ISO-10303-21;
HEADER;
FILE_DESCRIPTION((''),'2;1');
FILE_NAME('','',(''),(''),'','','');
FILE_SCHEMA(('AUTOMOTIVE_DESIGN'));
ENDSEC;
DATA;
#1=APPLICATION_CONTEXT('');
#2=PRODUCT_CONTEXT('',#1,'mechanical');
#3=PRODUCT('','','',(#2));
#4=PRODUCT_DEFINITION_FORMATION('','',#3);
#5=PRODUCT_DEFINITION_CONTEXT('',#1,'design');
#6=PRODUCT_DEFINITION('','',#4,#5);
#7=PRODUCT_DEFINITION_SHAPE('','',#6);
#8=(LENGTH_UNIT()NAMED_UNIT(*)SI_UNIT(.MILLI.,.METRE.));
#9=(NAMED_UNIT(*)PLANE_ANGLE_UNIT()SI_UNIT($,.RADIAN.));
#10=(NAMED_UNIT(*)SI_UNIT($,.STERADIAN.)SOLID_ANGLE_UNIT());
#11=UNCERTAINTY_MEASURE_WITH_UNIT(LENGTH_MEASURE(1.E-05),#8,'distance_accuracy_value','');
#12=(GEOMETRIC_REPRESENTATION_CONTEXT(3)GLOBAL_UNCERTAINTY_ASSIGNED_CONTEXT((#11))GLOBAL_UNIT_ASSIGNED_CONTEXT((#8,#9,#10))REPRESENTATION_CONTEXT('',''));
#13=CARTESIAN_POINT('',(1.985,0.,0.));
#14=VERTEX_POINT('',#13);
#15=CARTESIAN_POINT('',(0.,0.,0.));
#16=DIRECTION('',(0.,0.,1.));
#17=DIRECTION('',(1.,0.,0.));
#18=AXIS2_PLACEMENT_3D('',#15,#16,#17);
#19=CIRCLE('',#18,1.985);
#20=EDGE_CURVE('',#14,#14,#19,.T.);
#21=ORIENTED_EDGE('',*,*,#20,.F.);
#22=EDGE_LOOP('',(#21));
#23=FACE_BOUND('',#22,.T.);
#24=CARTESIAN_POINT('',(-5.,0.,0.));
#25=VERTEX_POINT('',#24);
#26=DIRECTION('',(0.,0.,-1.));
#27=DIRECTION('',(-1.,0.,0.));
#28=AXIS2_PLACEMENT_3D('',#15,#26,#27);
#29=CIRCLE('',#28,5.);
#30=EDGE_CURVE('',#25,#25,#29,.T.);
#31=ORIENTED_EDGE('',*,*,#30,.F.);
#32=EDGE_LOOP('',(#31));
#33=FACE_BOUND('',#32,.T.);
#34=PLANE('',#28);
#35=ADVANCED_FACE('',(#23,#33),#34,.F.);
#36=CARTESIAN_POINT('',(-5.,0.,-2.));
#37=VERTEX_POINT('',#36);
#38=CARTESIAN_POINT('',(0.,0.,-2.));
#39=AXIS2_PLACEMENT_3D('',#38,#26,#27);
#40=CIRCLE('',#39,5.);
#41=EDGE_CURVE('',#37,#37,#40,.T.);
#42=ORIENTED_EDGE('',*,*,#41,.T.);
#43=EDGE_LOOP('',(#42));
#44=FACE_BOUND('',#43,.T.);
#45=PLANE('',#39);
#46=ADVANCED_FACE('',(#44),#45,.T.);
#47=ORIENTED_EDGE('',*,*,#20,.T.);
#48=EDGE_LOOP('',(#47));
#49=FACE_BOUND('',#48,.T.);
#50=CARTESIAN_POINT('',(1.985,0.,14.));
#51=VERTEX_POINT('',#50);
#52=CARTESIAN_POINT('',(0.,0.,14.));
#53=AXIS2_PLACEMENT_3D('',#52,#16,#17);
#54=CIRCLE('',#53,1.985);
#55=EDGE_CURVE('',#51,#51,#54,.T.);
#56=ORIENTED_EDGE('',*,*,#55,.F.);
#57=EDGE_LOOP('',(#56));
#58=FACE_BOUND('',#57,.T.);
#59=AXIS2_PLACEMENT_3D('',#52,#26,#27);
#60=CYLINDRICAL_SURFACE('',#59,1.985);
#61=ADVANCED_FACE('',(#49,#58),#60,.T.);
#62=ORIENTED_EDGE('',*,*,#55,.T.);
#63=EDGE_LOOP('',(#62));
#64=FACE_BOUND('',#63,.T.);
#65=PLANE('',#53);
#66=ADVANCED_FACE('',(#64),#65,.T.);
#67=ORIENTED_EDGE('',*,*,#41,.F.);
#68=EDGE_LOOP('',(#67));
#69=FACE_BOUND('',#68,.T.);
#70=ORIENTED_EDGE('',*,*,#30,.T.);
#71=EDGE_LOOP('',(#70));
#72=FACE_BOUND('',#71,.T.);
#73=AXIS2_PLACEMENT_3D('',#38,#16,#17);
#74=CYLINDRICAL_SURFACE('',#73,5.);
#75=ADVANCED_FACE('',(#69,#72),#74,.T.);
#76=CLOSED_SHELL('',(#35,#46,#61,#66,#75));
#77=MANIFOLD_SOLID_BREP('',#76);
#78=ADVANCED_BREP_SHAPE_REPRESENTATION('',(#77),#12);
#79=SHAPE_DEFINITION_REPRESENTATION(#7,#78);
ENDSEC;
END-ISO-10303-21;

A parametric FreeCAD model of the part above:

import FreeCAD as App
import Part
import Sketcher
from FreeCAD import Vector
Q = App.Units.Quantity

doc = App.newDocument("Part")
body = doc.addObject("PartDesign::Body", "Body")

# Sketch on XY plane
sketch1 = doc.addObject("Sketcher::SketchObject", "Sketch")
body.addObject(sketch1)
sketch1.AttachmentSupport = (doc.XY_Plane, [""])
sketch1.MapMode = "FlatFace"
sketch1.addGeometry(Part.Circle(Vector(0, 0, 0), Vector(0, 0, 1), 1.985), False)
sketch1.addConstraint(Sketcher.Constraint("Coincident", 0, 3, -1, 1))
sketch1.addConstraint(Sketcher.Constraint("Diameter", 0, Q("3.97 mm")))
pad1 = doc.addObject("PartDesign::Pad", "Pad")
body.addObject(pad1)
pad1.Profile = sketch1
pad1.Length = 14

# Sketch on XY plane
sketch2 = doc.addObject("Sketcher::SketchObject", "Sketch001")
body.addObject(sketch2)
sketch2.AttachmentSupport = (doc.XY_Plane, [""])
sketch2.MapMode = "FlatFace"
sketch2.addGeometry(Part.Circle(Vector(0, 0, 0), Vector(0, 0, 1), 5), False)
sketch2.addConstraint(Sketcher.Constraint("Coincident", 0, 3, -1, 1))
sketch2.addConstraint(Sketcher.Constraint("Diameter", 0, Q("10 mm")))
pad2 = doc.addObject("PartDesign::Pad", "Pad001")
body.addObject(pad2)
pad2.Profile = sketch2
pad2.Length = 2
pad2.Reversed = True

doc.recompute()
